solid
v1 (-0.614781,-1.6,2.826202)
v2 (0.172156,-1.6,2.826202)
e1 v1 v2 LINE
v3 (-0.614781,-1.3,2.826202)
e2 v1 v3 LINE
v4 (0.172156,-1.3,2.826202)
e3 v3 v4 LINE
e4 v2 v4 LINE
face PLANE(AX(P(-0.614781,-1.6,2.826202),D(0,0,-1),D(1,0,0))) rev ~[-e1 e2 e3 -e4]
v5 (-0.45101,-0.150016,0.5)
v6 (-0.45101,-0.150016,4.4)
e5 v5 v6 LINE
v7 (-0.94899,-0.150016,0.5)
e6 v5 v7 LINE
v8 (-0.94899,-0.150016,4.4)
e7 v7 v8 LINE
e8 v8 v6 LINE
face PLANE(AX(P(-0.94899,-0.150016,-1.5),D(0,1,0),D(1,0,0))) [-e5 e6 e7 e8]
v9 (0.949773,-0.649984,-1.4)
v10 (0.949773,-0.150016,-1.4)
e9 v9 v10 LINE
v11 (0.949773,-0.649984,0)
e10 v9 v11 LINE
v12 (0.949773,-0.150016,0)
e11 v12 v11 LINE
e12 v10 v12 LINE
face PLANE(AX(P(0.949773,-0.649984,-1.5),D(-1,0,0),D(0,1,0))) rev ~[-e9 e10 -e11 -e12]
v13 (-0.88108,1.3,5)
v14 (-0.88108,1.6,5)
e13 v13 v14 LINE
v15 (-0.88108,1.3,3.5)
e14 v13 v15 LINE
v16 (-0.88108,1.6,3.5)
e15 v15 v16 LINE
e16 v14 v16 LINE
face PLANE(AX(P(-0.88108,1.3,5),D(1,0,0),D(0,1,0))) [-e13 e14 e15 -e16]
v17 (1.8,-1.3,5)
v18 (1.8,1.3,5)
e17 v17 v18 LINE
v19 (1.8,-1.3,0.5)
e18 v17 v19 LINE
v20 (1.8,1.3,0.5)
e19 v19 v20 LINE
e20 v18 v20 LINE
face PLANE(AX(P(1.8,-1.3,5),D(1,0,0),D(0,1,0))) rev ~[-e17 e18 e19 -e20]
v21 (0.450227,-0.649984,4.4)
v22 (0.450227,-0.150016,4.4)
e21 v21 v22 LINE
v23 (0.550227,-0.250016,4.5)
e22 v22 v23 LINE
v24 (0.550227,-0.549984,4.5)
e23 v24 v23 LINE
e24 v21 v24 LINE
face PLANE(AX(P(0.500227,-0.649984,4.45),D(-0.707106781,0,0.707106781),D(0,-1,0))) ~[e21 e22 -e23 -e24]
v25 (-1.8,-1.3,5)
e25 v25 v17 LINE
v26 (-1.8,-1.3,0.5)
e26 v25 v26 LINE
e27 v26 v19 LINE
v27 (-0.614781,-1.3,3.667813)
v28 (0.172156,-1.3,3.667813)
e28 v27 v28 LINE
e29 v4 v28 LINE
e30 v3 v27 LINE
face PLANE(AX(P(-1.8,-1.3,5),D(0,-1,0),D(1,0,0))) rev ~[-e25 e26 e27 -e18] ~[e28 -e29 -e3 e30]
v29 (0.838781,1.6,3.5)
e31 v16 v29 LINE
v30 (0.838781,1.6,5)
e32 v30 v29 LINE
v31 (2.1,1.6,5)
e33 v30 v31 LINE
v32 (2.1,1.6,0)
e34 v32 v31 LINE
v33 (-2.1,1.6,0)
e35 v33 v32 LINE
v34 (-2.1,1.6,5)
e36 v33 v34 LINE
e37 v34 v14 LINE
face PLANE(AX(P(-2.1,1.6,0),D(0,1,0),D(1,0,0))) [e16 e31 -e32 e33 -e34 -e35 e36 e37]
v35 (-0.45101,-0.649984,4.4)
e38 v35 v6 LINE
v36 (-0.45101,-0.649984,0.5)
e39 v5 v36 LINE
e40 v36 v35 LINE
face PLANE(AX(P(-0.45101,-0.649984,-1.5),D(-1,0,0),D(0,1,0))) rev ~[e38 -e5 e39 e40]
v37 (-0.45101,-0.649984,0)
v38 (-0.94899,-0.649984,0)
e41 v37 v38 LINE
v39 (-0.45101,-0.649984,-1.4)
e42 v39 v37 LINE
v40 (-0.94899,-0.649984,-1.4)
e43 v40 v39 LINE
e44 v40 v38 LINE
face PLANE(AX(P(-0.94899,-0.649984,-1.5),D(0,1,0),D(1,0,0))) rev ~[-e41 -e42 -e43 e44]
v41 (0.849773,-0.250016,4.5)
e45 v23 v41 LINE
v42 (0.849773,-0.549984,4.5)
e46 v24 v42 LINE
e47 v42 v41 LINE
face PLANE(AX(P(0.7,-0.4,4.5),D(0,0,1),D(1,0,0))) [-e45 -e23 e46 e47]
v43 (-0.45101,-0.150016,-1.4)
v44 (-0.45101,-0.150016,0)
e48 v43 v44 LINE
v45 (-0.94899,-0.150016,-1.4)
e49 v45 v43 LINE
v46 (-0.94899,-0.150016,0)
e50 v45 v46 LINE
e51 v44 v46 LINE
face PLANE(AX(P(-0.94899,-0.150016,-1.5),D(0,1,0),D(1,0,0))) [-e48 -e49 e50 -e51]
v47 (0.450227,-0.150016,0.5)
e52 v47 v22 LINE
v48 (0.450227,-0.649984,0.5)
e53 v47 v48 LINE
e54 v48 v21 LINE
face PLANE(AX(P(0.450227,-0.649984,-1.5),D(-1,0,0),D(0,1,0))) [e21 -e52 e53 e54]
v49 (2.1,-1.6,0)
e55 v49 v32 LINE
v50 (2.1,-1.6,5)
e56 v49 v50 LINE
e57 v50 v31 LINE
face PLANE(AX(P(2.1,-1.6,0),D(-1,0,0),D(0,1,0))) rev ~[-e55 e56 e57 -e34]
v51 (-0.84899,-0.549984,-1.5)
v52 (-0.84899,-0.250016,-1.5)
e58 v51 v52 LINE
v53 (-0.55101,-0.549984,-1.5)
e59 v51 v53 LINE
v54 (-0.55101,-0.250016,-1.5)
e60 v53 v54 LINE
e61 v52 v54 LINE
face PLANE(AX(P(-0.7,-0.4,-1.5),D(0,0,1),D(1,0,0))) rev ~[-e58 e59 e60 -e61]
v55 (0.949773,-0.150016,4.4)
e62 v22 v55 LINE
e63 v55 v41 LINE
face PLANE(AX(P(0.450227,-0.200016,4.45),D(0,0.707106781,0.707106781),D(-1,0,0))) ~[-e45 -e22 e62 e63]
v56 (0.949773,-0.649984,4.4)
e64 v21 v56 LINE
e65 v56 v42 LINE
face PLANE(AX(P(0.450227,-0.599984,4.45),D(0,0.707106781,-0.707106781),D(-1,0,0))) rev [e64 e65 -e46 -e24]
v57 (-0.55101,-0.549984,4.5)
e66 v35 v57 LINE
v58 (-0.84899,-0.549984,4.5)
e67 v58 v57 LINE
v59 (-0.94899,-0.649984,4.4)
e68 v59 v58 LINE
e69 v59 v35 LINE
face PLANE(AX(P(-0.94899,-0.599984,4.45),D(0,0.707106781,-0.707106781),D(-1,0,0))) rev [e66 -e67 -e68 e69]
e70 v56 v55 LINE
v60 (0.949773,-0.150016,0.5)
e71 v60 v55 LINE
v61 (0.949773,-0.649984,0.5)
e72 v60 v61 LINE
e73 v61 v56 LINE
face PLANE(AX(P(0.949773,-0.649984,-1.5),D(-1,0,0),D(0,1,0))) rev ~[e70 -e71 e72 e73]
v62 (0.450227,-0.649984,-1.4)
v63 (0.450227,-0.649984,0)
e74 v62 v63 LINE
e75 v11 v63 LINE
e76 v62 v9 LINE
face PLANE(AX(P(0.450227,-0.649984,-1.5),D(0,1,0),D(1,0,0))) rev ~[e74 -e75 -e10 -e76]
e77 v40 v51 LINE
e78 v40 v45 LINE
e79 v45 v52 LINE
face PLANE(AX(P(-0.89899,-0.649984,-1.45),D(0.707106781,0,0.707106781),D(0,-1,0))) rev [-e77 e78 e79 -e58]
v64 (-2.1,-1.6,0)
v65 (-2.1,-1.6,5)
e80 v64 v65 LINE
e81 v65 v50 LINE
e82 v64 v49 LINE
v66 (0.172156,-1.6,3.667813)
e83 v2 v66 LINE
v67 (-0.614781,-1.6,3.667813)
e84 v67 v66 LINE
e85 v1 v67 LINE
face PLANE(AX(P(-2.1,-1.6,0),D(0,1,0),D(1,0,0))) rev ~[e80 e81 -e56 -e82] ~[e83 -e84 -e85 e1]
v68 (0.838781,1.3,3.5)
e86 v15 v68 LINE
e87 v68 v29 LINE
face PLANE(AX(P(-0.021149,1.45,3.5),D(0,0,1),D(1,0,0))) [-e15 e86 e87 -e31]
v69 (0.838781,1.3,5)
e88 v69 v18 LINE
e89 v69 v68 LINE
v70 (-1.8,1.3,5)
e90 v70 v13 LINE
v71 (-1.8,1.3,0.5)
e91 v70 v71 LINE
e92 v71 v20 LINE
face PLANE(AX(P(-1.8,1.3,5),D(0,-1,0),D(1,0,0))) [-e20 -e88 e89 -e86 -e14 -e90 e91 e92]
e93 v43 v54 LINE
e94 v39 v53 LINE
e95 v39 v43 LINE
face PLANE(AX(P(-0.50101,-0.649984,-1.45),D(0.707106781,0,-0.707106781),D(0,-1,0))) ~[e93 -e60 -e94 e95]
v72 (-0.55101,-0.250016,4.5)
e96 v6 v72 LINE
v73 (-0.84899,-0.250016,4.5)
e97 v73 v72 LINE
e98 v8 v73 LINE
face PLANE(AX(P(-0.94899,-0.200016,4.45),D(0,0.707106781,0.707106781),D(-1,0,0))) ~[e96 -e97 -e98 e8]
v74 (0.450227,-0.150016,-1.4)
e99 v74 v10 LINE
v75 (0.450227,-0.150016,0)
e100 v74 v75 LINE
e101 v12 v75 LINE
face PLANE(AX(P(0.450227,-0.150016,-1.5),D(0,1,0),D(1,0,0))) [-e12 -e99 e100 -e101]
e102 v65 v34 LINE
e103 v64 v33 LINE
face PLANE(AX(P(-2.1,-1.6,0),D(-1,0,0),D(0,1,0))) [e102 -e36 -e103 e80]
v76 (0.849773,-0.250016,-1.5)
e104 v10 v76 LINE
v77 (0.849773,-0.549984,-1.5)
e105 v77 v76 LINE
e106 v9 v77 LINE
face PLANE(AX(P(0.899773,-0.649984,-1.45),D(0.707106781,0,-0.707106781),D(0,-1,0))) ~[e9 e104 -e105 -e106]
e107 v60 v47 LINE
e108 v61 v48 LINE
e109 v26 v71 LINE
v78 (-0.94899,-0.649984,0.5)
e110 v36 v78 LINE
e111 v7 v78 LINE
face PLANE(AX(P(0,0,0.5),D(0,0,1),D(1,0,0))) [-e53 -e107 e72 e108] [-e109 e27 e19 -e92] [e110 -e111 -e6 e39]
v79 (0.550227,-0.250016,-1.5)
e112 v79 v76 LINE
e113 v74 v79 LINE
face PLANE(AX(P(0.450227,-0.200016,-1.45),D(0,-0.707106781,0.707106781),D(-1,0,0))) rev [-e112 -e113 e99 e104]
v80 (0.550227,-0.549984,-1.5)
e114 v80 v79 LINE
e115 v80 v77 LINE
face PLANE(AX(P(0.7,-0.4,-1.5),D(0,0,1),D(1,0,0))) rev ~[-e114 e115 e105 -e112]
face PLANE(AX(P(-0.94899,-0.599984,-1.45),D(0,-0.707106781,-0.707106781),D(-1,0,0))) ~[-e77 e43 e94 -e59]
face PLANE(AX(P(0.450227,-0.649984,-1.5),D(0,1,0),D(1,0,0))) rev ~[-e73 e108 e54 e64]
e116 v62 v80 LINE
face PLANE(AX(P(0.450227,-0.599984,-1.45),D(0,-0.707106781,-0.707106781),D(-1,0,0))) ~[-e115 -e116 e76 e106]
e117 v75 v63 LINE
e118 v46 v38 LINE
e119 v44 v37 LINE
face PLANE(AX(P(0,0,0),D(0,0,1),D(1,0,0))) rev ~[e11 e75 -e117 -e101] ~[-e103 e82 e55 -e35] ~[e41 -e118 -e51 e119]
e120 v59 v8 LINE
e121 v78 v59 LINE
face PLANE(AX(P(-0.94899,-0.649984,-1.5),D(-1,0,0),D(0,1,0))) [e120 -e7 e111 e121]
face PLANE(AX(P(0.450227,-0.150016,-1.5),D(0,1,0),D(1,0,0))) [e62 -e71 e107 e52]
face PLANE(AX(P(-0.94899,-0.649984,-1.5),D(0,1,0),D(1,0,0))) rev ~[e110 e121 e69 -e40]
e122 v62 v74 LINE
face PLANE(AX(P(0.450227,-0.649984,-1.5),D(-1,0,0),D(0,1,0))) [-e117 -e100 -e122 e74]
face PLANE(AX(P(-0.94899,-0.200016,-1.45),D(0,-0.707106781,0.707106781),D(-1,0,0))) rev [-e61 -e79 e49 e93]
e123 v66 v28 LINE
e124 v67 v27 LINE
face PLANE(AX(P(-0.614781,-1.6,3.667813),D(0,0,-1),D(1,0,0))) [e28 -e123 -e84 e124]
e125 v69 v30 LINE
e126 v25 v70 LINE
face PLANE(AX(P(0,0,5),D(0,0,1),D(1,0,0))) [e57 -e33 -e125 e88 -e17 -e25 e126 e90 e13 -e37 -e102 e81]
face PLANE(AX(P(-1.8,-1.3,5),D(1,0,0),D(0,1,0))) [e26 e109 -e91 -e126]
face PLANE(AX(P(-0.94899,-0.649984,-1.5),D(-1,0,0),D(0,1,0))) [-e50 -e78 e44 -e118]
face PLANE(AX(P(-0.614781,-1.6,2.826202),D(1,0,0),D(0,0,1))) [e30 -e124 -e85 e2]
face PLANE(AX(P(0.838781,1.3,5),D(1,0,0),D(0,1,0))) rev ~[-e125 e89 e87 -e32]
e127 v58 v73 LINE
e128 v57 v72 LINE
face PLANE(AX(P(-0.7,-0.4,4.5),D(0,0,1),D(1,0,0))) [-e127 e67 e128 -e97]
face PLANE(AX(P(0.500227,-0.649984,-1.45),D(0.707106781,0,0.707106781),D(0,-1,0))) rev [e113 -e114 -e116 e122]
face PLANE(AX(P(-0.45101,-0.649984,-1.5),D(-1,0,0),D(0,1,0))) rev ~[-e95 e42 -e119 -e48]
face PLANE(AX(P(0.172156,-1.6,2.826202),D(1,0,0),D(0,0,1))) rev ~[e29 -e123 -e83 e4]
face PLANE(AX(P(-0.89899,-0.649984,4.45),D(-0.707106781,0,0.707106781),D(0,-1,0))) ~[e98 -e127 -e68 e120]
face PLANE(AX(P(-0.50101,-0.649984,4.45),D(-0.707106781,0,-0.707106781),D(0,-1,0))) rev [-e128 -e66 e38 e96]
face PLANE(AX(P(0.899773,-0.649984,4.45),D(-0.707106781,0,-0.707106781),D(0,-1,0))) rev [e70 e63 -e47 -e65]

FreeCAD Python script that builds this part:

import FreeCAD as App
import Part
import Sketcher

V = App.Vector
Q = App.Units.Quantity


def edges_at(feature, points):
    """Names of the edges that pass closest to the given points."""
    edges = feature.Shape.Edges
    near = lambda p: min(range(len(edges)), key=lambda i: edges[i].distToShape(Part.Vertex(*p))[0])
    return sorted({f"Edge{near(p) + 1}" for p in points})

doc = App.newDocument("Part")
params = doc.addObject("Spreadsheet::Sheet", "Params")
for row, (alias, value) in enumerate([
    ("sketch1_width", "4.2 mm"),
    ("sketch1_height", "3.2 mm"),
    ("pad1_length", "5 mm"),
    ("sketch2_width", "3.6 mm"),
    ("sketch2_height", "2.6 mm"),
    ("pocket1_length", "4.5 mm"),
    ("sketch3_height", "0.3 mm"),
    ("pocket2_length", "1.5 mm"),
    ("pad2_length", "4 mm"),
    ("pad2_length2", "2 mm"),
    ("chamfer_size", "0.1 mm"),
    ("chamfer2_size", "0.1 mm"),
    ("pocket3_length", "0.5 mm"),
], start=1):
    params.set(f"A{row}", alias)
    params.set(f"B{row}", "=" + value)
    params.setAlias(f"B{row}", alias)

body = doc.addObject("PartDesign::Body", "Body")

# Sketch on XY plane
sketch1 = doc.addObject("Sketcher::SketchObject", "Sketch")
body.addObject(sketch1)
sketch1.AttachmentSupport = (doc.XY_Plane, [""])
sketch1.MapMode = "FlatFace"
sketch1.addGeometry([
    Part.LineSegment(V(-2.1, 1.6, 0), V(-2.1, -1.6, 0)),
    Part.LineSegment(V(-2.1, -1.6, 0), V(2.1, -1.6, 0)),
    Part.LineSegment(V(2.1, -1.6, 0), V(2.1, 1.6, 0)),
    Part.LineSegment(V(2.1, 1.6, 0), V(-2.1, 1.6, 0)),
], False)
sketch1.addConstraint([
    Sketcher.Constraint("Coincident", 0, 2, 1, 1),
    Sketcher.Constraint("Coincident", 1, 2, 2, 1),
    Sketcher.Constraint("Coincident", 2, 2, 3, 1),
    Sketcher.Constraint("Coincident", 3, 2, 0, 1),
    Sketcher.Constraint("Vertical", 0),
    Sketcher.Constraint("Horizontal", 1),
    Sketcher.Constraint("Vertical", 2),
    Sketcher.Constraint("Horizontal", 3),
    Sketcher.Constraint("Symmetric", 0, 2, 2, 2, -1, 1),
    Sketcher.Constraint("DistanceX", 1, 1, 1, 2, Q("4.2 mm")),
    Sketcher.Constraint("DistanceY", 0, 2, 0, 1, Q("3.2 mm")),
])
sketch1.setExpression("Constraints[9]", "Params.sketch1_width")
sketch1.setExpression("Constraints[10]", "Params.sketch1_height")
pad1 = doc.addObject("PartDesign::Pad", "Pad")
body.addObject(pad1)
pad1.Profile = sketch1
pad1.setExpression("Length", "Params.pad1_length")

# Sketch on XY plane
sketch2 = doc.addObject("Sketcher::SketchObject", "Sketch001")
body.addObject(sketch2)
sketch2.AttachmentSupport = (doc.XY_Plane, [""])
sketch2.MapMode = "FlatFace"
sketch2.AttachmentOffset = App.Placement(V(0, 0, 5), App.Rotation())
sketch2.addGeometry([
    Part.LineSegment(V(-1.8, 1.3, 0), V(-1.8, -1.3, 0)),
    Part.LineSegment(V(-1.8, -1.3, 0), V(1.8, -1.3, 0)),
    Part.LineSegment(V(1.8, -1.3, 0), V(1.8, 1.3, 0)),
    Part.LineSegment(V(1.8, 1.3, 0), V(-1.8, 1.3, 0)),
], False)
sketch2.addConstraint([
    Sketcher.Constraint("Coincident", 0, 2, 1, 1),
    Sketcher.Constraint("Coincident", 1, 2, 2, 1),
    Sketcher.Constraint("Coincident", 2, 2, 3, 1),
    Sketcher.Constraint("Coincident", 3, 2, 0, 1),
    Sketcher.Constraint("Vertical", 0),
    Sketcher.Constraint("Horizontal", 1),
    Sketcher.Constraint("Vertical", 2),
    Sketcher.Constraint("Horizontal", 3),
    Sketcher.Constraint("Symmetric", 0, 2, 2, 2, -1, 1),
    Sketcher.Constraint("DistanceX", 1, 1, 1, 2, Q("3.6 mm")),
    Sketcher.Constraint("DistanceY", 0, 2, 0, 1, Q("2.6 mm")),
])
sketch2.setExpression("Constraints[9]", "Params.sketch2_width")
sketch2.setExpression("Constraints[10]", "Params.sketch2_height")
pocket1 = doc.addObject("PartDesign::Pocket", "Pocket")
body.addObject(pocket1)
pocket1.Profile = sketch2
pocket1.setExpression("Length", "Params.pocket1_length")

# Sketch on XY plane
sketch3 = doc.addObject("Sketcher::SketchObject", "Sketch002")
body.addObject(sketch3)
sketch3.AttachmentSupport = (doc.XY_Plane, [""])
sketch3.MapMode = "FlatFace"
sketch3.AttachmentOffset = App.Placement(V(0, 0, 5), App.Rotation())
sketch3.addGeometry([
    Part.LineSegment(V(-0.88, 1.6, 0), V(-0.88, 1.3, 0)),
    Part.LineSegment(V(-0.88, 1.3, 0), V(0.84, 1.3, 0)),
    Part.LineSegment(V(0.84, 1.3, 0), V(0.84, 1.6, 0)),
    Part.LineSegment(V(0.84, 1.6, 0), V(-0.88, 1.6, 0)),
], False)
sketch3.addConstraint([
    Sketcher.Constraint("Coincident", 0, 2, 1, 1),
    Sketcher.Constraint("Coincident", 1, 2, 2, 1),
    Sketcher.Constraint("Coincident", 2, 2, 3, 1),
    Sketcher.Constraint("Coincident", 3, 2, 0, 1),
    Sketcher.Constraint("Vertical", 0),
    Sketcher.Constraint("Horizontal", 1),
    Sketcher.Constraint("Vertical", 2),
    Sketcher.Constraint("Horizontal", 3),
    Sketcher.Constraint("DistanceY", 0, 2, 0, 1, Q("0.3 mm")),
    Sketcher.Constraint("DistanceY", -1, 1, 0, 2, Q("1.3 mm")),
    Sketcher.Constraint("DistanceX", 1, 1, 1, 2, Q("1.719861 mm")),
    Sketcher.Constraint("DistanceX", 0, 2, -1, 1, Q("0.88108 mm")),
])
sketch3.setExpression("Constraints[8]", "Params.sketch3_height")
pocket2 = doc.addObject("PartDesign::Pocket", "Pocket001")
body.addObject(pocket2)
pocket2.Profile = sketch3
pocket2.setExpression("Length", "Params.pocket2_length")

# Sketch on XY plane
sketch4 = doc.addObject("Sketcher::SketchObject", "Sketch003")
body.addObject(sketch4)
sketch4.AttachmentSupport = (doc.XY_Plane, [""])
sketch4.MapMode = "FlatFace"
sketch4.AttachmentOffset = App.Placement(V(0, 0, 0.5), App.Rotation())
sketch4.addGeometry([
    Part.LineSegment(V(-0.95, -0.15, 0), V(-0.95, -0.65, 0)),  # 0
    Part.LineSegment(V(-0.95, -0.65, 0), V(-0.45, -0.65, 0)),  # 1
    Part.LineSegment(V(-0.45, -0.65, 0), V(-0.45, -0.15, 0)),  # 2
    Part.LineSegment(V(-0.45, -0.15, 0), V(-0.95, -0.15, 0)),  # 3
    Part.LineSegment(V(0.45, -0.15, 0), V(0.45, -0.65, 0)),  # 4
    Part.LineSegment(V(0.45, -0.65, 0), V(0.95, -0.65, 0)),  # 5
    Part.LineSegment(V(0.95, -0.65, 0), V(0.95, -0.15, 0)),  # 6
    Part.LineSegment(V(0.95, -0.15, 0), V(0.45, -0.15, 0)),  # 7
], False)
sketch4.addConstraint([
    Sketcher.Constraint("Coincident", 0, 2, 1, 1),
    Sketcher.Constraint("Coincident", 1, 2, 2, 1),
    Sketcher.Constraint("Coincident", 2, 2, 3, 1),
    Sketcher.Constraint("Coincident", 3, 2, 0, 1),
    Sketcher.Constraint("Coincident", 4, 2, 5, 1),
    Sketcher.Constraint("Coincident", 5, 2, 6, 1),
    Sketcher.Constraint("Coincident", 6, 2, 7, 1),
    Sketcher.Constraint("Coincident", 7, 2, 4, 1),
    Sketcher.Constraint("Vertical", 0),
    Sketcher.Constraint("Horizontal", 1),
    Sketcher.Constraint("Vertical", 2),
    Sketcher.Constraint("Horizontal", 3),
    Sketcher.Constraint("Vertical", 4),
    Sketcher.Constraint("Horizontal", 5),
    Sketcher.Constraint("Vertical", 6),
    Sketcher.Constraint("Horizontal", 7),
    Sketcher.Constraint("Horizontal", 1, 2, 4, 2),
    Sketcher.Constraint("Horizontal", 3, 2, 6, 2),
    Sketcher.Constraint("DistanceX", 1, 1, 1, 2, Q("0.497981 mm")),
    Sketcher.Constraint("DistanceY", 0, 2, 0, 1, Q("0.499969 mm")),
    Sketcher.Constraint("DistanceX", 5, 1, 5, 2, Q("0.499546 mm")),
    Sketcher.Constraint("DistanceX", 0, 2, -1, 1, Q("0.94899 mm")),
    Sketcher.Constraint("DistanceY", 0, 2, -1, 1, Q("0.649984 mm")),
    Sketcher.Constraint("DistanceX", -1, 1, 4, 2, Q("0.450227 mm")),
])
pad2 = doc.addObject("PartDesign::Pad", "Pad001")
body.addObject(pad2)
pad2.Profile = sketch4
pad2.Type = "TwoLengths"
pad2.setExpression("Length", "Params.pad2_length")
pad2.setExpression("Length2", "Params.pad2_length2")
doc.recompute()

chamfer = doc.addObject("PartDesign::Chamfer", "Chamfer")
body.addObject(chamfer)
chamfer.Base = (pad2, edges_at(pad2, [
    (-0.451, -0.4, 4.5),
    (-0.7, -0.15, 4.5),
    (-0.949, -0.4, 4.5),
    (-0.7, -0.65, 4.5),
    (0.95, -0.4, 4.5),
    (0.7, -0.15, 4.5),
    (0.45, -0.4, 4.5),
    (0.7, -0.65, 4.5),
]))
chamfer.setExpression("Size", "Params.chamfer_size")
doc.recompute()

chamfer2 = doc.addObject("PartDesign::Chamfer", "Chamfer001")
body.addObject(chamfer2)
chamfer2.Base = (chamfer, edges_at(chamfer, [
    (-0.451, -0.4, -1.5),
    (-0.7, -0.65, -1.5),
    (-0.949, -0.4, -1.5),
    (-0.7, -0.15, -1.5),
    (0.95, -0.4, -1.5),
    (0.7, -0.65, -1.5),
    (0.45, -0.4, -1.5),
    (0.7, -0.15, -1.5),
]))
chamfer2.setExpression("Size", "Params.chamfer2_size")

# Sketch on XZ plane
sketch5 = doc.addObject("Sketcher::SketchObject", "Sketch004")
body.addObject(sketch5)
sketch5.AttachmentSupport = (doc.XZ_Plane, [""])
sketch5.MapMode = "FlatFace"
sketch5.AttachmentOffset = App.Placement(V(0, 0, 1.6), App.Rotation())
sketch5.addGeometry([
    Part.LineSegment(V(-0.6, 3.7, 0), V(-0.6, 2.8, 0)),
    Part.LineSegment(V(-0.6, 2.8, 0), V(0.2, 2.8, 0)),
    Part.LineSegment(V(0.2, 2.8, 0), V(0.2, 3.7, 0)),
    Part.LineSegment(V(0.2, 3.7, 0), V(-0.6, 3.7, 0)),
], False)
sketch5.addConstraint([
    Sketcher.Constraint("Coincident", 0, 2, 1, 1),
    Sketcher.Constraint("Coincident", 1, 2, 2, 1),
    Sketcher.Constraint("Coincident", 2, 2, 3, 1),
    Sketcher.Constraint("Coincident", 3, 2, 0, 1),
    Sketcher.Constraint("Vertical", 0),
    Sketcher.Constraint("Horizontal", 1),
    Sketcher.Constraint("Vertical", 2),
    Sketcher.Constraint("Horizontal", 3),
    Sketcher.Constraint("DistanceY", 0, 2, 0, 1, Q("0.841611 mm")),
    Sketcher.Constraint("DistanceY", -1, 1, 0, 2, Q("2.826202 mm")),
    Sketcher.Constraint("DistanceX", 1, 1, 1, 2, Q("0.786937 mm")),
    Sketcher.Constraint("DistanceX", 0, 2, -1, 1, Q("0.614781 mm")),
])
pocket3 = doc.addObject("PartDesign::Pocket", "Pocket002")
body.addObject(pocket3)
pocket3.Profile = sketch5
pocket3.setExpression("Length", "Params.pocket3_length")

doc.recompute()
